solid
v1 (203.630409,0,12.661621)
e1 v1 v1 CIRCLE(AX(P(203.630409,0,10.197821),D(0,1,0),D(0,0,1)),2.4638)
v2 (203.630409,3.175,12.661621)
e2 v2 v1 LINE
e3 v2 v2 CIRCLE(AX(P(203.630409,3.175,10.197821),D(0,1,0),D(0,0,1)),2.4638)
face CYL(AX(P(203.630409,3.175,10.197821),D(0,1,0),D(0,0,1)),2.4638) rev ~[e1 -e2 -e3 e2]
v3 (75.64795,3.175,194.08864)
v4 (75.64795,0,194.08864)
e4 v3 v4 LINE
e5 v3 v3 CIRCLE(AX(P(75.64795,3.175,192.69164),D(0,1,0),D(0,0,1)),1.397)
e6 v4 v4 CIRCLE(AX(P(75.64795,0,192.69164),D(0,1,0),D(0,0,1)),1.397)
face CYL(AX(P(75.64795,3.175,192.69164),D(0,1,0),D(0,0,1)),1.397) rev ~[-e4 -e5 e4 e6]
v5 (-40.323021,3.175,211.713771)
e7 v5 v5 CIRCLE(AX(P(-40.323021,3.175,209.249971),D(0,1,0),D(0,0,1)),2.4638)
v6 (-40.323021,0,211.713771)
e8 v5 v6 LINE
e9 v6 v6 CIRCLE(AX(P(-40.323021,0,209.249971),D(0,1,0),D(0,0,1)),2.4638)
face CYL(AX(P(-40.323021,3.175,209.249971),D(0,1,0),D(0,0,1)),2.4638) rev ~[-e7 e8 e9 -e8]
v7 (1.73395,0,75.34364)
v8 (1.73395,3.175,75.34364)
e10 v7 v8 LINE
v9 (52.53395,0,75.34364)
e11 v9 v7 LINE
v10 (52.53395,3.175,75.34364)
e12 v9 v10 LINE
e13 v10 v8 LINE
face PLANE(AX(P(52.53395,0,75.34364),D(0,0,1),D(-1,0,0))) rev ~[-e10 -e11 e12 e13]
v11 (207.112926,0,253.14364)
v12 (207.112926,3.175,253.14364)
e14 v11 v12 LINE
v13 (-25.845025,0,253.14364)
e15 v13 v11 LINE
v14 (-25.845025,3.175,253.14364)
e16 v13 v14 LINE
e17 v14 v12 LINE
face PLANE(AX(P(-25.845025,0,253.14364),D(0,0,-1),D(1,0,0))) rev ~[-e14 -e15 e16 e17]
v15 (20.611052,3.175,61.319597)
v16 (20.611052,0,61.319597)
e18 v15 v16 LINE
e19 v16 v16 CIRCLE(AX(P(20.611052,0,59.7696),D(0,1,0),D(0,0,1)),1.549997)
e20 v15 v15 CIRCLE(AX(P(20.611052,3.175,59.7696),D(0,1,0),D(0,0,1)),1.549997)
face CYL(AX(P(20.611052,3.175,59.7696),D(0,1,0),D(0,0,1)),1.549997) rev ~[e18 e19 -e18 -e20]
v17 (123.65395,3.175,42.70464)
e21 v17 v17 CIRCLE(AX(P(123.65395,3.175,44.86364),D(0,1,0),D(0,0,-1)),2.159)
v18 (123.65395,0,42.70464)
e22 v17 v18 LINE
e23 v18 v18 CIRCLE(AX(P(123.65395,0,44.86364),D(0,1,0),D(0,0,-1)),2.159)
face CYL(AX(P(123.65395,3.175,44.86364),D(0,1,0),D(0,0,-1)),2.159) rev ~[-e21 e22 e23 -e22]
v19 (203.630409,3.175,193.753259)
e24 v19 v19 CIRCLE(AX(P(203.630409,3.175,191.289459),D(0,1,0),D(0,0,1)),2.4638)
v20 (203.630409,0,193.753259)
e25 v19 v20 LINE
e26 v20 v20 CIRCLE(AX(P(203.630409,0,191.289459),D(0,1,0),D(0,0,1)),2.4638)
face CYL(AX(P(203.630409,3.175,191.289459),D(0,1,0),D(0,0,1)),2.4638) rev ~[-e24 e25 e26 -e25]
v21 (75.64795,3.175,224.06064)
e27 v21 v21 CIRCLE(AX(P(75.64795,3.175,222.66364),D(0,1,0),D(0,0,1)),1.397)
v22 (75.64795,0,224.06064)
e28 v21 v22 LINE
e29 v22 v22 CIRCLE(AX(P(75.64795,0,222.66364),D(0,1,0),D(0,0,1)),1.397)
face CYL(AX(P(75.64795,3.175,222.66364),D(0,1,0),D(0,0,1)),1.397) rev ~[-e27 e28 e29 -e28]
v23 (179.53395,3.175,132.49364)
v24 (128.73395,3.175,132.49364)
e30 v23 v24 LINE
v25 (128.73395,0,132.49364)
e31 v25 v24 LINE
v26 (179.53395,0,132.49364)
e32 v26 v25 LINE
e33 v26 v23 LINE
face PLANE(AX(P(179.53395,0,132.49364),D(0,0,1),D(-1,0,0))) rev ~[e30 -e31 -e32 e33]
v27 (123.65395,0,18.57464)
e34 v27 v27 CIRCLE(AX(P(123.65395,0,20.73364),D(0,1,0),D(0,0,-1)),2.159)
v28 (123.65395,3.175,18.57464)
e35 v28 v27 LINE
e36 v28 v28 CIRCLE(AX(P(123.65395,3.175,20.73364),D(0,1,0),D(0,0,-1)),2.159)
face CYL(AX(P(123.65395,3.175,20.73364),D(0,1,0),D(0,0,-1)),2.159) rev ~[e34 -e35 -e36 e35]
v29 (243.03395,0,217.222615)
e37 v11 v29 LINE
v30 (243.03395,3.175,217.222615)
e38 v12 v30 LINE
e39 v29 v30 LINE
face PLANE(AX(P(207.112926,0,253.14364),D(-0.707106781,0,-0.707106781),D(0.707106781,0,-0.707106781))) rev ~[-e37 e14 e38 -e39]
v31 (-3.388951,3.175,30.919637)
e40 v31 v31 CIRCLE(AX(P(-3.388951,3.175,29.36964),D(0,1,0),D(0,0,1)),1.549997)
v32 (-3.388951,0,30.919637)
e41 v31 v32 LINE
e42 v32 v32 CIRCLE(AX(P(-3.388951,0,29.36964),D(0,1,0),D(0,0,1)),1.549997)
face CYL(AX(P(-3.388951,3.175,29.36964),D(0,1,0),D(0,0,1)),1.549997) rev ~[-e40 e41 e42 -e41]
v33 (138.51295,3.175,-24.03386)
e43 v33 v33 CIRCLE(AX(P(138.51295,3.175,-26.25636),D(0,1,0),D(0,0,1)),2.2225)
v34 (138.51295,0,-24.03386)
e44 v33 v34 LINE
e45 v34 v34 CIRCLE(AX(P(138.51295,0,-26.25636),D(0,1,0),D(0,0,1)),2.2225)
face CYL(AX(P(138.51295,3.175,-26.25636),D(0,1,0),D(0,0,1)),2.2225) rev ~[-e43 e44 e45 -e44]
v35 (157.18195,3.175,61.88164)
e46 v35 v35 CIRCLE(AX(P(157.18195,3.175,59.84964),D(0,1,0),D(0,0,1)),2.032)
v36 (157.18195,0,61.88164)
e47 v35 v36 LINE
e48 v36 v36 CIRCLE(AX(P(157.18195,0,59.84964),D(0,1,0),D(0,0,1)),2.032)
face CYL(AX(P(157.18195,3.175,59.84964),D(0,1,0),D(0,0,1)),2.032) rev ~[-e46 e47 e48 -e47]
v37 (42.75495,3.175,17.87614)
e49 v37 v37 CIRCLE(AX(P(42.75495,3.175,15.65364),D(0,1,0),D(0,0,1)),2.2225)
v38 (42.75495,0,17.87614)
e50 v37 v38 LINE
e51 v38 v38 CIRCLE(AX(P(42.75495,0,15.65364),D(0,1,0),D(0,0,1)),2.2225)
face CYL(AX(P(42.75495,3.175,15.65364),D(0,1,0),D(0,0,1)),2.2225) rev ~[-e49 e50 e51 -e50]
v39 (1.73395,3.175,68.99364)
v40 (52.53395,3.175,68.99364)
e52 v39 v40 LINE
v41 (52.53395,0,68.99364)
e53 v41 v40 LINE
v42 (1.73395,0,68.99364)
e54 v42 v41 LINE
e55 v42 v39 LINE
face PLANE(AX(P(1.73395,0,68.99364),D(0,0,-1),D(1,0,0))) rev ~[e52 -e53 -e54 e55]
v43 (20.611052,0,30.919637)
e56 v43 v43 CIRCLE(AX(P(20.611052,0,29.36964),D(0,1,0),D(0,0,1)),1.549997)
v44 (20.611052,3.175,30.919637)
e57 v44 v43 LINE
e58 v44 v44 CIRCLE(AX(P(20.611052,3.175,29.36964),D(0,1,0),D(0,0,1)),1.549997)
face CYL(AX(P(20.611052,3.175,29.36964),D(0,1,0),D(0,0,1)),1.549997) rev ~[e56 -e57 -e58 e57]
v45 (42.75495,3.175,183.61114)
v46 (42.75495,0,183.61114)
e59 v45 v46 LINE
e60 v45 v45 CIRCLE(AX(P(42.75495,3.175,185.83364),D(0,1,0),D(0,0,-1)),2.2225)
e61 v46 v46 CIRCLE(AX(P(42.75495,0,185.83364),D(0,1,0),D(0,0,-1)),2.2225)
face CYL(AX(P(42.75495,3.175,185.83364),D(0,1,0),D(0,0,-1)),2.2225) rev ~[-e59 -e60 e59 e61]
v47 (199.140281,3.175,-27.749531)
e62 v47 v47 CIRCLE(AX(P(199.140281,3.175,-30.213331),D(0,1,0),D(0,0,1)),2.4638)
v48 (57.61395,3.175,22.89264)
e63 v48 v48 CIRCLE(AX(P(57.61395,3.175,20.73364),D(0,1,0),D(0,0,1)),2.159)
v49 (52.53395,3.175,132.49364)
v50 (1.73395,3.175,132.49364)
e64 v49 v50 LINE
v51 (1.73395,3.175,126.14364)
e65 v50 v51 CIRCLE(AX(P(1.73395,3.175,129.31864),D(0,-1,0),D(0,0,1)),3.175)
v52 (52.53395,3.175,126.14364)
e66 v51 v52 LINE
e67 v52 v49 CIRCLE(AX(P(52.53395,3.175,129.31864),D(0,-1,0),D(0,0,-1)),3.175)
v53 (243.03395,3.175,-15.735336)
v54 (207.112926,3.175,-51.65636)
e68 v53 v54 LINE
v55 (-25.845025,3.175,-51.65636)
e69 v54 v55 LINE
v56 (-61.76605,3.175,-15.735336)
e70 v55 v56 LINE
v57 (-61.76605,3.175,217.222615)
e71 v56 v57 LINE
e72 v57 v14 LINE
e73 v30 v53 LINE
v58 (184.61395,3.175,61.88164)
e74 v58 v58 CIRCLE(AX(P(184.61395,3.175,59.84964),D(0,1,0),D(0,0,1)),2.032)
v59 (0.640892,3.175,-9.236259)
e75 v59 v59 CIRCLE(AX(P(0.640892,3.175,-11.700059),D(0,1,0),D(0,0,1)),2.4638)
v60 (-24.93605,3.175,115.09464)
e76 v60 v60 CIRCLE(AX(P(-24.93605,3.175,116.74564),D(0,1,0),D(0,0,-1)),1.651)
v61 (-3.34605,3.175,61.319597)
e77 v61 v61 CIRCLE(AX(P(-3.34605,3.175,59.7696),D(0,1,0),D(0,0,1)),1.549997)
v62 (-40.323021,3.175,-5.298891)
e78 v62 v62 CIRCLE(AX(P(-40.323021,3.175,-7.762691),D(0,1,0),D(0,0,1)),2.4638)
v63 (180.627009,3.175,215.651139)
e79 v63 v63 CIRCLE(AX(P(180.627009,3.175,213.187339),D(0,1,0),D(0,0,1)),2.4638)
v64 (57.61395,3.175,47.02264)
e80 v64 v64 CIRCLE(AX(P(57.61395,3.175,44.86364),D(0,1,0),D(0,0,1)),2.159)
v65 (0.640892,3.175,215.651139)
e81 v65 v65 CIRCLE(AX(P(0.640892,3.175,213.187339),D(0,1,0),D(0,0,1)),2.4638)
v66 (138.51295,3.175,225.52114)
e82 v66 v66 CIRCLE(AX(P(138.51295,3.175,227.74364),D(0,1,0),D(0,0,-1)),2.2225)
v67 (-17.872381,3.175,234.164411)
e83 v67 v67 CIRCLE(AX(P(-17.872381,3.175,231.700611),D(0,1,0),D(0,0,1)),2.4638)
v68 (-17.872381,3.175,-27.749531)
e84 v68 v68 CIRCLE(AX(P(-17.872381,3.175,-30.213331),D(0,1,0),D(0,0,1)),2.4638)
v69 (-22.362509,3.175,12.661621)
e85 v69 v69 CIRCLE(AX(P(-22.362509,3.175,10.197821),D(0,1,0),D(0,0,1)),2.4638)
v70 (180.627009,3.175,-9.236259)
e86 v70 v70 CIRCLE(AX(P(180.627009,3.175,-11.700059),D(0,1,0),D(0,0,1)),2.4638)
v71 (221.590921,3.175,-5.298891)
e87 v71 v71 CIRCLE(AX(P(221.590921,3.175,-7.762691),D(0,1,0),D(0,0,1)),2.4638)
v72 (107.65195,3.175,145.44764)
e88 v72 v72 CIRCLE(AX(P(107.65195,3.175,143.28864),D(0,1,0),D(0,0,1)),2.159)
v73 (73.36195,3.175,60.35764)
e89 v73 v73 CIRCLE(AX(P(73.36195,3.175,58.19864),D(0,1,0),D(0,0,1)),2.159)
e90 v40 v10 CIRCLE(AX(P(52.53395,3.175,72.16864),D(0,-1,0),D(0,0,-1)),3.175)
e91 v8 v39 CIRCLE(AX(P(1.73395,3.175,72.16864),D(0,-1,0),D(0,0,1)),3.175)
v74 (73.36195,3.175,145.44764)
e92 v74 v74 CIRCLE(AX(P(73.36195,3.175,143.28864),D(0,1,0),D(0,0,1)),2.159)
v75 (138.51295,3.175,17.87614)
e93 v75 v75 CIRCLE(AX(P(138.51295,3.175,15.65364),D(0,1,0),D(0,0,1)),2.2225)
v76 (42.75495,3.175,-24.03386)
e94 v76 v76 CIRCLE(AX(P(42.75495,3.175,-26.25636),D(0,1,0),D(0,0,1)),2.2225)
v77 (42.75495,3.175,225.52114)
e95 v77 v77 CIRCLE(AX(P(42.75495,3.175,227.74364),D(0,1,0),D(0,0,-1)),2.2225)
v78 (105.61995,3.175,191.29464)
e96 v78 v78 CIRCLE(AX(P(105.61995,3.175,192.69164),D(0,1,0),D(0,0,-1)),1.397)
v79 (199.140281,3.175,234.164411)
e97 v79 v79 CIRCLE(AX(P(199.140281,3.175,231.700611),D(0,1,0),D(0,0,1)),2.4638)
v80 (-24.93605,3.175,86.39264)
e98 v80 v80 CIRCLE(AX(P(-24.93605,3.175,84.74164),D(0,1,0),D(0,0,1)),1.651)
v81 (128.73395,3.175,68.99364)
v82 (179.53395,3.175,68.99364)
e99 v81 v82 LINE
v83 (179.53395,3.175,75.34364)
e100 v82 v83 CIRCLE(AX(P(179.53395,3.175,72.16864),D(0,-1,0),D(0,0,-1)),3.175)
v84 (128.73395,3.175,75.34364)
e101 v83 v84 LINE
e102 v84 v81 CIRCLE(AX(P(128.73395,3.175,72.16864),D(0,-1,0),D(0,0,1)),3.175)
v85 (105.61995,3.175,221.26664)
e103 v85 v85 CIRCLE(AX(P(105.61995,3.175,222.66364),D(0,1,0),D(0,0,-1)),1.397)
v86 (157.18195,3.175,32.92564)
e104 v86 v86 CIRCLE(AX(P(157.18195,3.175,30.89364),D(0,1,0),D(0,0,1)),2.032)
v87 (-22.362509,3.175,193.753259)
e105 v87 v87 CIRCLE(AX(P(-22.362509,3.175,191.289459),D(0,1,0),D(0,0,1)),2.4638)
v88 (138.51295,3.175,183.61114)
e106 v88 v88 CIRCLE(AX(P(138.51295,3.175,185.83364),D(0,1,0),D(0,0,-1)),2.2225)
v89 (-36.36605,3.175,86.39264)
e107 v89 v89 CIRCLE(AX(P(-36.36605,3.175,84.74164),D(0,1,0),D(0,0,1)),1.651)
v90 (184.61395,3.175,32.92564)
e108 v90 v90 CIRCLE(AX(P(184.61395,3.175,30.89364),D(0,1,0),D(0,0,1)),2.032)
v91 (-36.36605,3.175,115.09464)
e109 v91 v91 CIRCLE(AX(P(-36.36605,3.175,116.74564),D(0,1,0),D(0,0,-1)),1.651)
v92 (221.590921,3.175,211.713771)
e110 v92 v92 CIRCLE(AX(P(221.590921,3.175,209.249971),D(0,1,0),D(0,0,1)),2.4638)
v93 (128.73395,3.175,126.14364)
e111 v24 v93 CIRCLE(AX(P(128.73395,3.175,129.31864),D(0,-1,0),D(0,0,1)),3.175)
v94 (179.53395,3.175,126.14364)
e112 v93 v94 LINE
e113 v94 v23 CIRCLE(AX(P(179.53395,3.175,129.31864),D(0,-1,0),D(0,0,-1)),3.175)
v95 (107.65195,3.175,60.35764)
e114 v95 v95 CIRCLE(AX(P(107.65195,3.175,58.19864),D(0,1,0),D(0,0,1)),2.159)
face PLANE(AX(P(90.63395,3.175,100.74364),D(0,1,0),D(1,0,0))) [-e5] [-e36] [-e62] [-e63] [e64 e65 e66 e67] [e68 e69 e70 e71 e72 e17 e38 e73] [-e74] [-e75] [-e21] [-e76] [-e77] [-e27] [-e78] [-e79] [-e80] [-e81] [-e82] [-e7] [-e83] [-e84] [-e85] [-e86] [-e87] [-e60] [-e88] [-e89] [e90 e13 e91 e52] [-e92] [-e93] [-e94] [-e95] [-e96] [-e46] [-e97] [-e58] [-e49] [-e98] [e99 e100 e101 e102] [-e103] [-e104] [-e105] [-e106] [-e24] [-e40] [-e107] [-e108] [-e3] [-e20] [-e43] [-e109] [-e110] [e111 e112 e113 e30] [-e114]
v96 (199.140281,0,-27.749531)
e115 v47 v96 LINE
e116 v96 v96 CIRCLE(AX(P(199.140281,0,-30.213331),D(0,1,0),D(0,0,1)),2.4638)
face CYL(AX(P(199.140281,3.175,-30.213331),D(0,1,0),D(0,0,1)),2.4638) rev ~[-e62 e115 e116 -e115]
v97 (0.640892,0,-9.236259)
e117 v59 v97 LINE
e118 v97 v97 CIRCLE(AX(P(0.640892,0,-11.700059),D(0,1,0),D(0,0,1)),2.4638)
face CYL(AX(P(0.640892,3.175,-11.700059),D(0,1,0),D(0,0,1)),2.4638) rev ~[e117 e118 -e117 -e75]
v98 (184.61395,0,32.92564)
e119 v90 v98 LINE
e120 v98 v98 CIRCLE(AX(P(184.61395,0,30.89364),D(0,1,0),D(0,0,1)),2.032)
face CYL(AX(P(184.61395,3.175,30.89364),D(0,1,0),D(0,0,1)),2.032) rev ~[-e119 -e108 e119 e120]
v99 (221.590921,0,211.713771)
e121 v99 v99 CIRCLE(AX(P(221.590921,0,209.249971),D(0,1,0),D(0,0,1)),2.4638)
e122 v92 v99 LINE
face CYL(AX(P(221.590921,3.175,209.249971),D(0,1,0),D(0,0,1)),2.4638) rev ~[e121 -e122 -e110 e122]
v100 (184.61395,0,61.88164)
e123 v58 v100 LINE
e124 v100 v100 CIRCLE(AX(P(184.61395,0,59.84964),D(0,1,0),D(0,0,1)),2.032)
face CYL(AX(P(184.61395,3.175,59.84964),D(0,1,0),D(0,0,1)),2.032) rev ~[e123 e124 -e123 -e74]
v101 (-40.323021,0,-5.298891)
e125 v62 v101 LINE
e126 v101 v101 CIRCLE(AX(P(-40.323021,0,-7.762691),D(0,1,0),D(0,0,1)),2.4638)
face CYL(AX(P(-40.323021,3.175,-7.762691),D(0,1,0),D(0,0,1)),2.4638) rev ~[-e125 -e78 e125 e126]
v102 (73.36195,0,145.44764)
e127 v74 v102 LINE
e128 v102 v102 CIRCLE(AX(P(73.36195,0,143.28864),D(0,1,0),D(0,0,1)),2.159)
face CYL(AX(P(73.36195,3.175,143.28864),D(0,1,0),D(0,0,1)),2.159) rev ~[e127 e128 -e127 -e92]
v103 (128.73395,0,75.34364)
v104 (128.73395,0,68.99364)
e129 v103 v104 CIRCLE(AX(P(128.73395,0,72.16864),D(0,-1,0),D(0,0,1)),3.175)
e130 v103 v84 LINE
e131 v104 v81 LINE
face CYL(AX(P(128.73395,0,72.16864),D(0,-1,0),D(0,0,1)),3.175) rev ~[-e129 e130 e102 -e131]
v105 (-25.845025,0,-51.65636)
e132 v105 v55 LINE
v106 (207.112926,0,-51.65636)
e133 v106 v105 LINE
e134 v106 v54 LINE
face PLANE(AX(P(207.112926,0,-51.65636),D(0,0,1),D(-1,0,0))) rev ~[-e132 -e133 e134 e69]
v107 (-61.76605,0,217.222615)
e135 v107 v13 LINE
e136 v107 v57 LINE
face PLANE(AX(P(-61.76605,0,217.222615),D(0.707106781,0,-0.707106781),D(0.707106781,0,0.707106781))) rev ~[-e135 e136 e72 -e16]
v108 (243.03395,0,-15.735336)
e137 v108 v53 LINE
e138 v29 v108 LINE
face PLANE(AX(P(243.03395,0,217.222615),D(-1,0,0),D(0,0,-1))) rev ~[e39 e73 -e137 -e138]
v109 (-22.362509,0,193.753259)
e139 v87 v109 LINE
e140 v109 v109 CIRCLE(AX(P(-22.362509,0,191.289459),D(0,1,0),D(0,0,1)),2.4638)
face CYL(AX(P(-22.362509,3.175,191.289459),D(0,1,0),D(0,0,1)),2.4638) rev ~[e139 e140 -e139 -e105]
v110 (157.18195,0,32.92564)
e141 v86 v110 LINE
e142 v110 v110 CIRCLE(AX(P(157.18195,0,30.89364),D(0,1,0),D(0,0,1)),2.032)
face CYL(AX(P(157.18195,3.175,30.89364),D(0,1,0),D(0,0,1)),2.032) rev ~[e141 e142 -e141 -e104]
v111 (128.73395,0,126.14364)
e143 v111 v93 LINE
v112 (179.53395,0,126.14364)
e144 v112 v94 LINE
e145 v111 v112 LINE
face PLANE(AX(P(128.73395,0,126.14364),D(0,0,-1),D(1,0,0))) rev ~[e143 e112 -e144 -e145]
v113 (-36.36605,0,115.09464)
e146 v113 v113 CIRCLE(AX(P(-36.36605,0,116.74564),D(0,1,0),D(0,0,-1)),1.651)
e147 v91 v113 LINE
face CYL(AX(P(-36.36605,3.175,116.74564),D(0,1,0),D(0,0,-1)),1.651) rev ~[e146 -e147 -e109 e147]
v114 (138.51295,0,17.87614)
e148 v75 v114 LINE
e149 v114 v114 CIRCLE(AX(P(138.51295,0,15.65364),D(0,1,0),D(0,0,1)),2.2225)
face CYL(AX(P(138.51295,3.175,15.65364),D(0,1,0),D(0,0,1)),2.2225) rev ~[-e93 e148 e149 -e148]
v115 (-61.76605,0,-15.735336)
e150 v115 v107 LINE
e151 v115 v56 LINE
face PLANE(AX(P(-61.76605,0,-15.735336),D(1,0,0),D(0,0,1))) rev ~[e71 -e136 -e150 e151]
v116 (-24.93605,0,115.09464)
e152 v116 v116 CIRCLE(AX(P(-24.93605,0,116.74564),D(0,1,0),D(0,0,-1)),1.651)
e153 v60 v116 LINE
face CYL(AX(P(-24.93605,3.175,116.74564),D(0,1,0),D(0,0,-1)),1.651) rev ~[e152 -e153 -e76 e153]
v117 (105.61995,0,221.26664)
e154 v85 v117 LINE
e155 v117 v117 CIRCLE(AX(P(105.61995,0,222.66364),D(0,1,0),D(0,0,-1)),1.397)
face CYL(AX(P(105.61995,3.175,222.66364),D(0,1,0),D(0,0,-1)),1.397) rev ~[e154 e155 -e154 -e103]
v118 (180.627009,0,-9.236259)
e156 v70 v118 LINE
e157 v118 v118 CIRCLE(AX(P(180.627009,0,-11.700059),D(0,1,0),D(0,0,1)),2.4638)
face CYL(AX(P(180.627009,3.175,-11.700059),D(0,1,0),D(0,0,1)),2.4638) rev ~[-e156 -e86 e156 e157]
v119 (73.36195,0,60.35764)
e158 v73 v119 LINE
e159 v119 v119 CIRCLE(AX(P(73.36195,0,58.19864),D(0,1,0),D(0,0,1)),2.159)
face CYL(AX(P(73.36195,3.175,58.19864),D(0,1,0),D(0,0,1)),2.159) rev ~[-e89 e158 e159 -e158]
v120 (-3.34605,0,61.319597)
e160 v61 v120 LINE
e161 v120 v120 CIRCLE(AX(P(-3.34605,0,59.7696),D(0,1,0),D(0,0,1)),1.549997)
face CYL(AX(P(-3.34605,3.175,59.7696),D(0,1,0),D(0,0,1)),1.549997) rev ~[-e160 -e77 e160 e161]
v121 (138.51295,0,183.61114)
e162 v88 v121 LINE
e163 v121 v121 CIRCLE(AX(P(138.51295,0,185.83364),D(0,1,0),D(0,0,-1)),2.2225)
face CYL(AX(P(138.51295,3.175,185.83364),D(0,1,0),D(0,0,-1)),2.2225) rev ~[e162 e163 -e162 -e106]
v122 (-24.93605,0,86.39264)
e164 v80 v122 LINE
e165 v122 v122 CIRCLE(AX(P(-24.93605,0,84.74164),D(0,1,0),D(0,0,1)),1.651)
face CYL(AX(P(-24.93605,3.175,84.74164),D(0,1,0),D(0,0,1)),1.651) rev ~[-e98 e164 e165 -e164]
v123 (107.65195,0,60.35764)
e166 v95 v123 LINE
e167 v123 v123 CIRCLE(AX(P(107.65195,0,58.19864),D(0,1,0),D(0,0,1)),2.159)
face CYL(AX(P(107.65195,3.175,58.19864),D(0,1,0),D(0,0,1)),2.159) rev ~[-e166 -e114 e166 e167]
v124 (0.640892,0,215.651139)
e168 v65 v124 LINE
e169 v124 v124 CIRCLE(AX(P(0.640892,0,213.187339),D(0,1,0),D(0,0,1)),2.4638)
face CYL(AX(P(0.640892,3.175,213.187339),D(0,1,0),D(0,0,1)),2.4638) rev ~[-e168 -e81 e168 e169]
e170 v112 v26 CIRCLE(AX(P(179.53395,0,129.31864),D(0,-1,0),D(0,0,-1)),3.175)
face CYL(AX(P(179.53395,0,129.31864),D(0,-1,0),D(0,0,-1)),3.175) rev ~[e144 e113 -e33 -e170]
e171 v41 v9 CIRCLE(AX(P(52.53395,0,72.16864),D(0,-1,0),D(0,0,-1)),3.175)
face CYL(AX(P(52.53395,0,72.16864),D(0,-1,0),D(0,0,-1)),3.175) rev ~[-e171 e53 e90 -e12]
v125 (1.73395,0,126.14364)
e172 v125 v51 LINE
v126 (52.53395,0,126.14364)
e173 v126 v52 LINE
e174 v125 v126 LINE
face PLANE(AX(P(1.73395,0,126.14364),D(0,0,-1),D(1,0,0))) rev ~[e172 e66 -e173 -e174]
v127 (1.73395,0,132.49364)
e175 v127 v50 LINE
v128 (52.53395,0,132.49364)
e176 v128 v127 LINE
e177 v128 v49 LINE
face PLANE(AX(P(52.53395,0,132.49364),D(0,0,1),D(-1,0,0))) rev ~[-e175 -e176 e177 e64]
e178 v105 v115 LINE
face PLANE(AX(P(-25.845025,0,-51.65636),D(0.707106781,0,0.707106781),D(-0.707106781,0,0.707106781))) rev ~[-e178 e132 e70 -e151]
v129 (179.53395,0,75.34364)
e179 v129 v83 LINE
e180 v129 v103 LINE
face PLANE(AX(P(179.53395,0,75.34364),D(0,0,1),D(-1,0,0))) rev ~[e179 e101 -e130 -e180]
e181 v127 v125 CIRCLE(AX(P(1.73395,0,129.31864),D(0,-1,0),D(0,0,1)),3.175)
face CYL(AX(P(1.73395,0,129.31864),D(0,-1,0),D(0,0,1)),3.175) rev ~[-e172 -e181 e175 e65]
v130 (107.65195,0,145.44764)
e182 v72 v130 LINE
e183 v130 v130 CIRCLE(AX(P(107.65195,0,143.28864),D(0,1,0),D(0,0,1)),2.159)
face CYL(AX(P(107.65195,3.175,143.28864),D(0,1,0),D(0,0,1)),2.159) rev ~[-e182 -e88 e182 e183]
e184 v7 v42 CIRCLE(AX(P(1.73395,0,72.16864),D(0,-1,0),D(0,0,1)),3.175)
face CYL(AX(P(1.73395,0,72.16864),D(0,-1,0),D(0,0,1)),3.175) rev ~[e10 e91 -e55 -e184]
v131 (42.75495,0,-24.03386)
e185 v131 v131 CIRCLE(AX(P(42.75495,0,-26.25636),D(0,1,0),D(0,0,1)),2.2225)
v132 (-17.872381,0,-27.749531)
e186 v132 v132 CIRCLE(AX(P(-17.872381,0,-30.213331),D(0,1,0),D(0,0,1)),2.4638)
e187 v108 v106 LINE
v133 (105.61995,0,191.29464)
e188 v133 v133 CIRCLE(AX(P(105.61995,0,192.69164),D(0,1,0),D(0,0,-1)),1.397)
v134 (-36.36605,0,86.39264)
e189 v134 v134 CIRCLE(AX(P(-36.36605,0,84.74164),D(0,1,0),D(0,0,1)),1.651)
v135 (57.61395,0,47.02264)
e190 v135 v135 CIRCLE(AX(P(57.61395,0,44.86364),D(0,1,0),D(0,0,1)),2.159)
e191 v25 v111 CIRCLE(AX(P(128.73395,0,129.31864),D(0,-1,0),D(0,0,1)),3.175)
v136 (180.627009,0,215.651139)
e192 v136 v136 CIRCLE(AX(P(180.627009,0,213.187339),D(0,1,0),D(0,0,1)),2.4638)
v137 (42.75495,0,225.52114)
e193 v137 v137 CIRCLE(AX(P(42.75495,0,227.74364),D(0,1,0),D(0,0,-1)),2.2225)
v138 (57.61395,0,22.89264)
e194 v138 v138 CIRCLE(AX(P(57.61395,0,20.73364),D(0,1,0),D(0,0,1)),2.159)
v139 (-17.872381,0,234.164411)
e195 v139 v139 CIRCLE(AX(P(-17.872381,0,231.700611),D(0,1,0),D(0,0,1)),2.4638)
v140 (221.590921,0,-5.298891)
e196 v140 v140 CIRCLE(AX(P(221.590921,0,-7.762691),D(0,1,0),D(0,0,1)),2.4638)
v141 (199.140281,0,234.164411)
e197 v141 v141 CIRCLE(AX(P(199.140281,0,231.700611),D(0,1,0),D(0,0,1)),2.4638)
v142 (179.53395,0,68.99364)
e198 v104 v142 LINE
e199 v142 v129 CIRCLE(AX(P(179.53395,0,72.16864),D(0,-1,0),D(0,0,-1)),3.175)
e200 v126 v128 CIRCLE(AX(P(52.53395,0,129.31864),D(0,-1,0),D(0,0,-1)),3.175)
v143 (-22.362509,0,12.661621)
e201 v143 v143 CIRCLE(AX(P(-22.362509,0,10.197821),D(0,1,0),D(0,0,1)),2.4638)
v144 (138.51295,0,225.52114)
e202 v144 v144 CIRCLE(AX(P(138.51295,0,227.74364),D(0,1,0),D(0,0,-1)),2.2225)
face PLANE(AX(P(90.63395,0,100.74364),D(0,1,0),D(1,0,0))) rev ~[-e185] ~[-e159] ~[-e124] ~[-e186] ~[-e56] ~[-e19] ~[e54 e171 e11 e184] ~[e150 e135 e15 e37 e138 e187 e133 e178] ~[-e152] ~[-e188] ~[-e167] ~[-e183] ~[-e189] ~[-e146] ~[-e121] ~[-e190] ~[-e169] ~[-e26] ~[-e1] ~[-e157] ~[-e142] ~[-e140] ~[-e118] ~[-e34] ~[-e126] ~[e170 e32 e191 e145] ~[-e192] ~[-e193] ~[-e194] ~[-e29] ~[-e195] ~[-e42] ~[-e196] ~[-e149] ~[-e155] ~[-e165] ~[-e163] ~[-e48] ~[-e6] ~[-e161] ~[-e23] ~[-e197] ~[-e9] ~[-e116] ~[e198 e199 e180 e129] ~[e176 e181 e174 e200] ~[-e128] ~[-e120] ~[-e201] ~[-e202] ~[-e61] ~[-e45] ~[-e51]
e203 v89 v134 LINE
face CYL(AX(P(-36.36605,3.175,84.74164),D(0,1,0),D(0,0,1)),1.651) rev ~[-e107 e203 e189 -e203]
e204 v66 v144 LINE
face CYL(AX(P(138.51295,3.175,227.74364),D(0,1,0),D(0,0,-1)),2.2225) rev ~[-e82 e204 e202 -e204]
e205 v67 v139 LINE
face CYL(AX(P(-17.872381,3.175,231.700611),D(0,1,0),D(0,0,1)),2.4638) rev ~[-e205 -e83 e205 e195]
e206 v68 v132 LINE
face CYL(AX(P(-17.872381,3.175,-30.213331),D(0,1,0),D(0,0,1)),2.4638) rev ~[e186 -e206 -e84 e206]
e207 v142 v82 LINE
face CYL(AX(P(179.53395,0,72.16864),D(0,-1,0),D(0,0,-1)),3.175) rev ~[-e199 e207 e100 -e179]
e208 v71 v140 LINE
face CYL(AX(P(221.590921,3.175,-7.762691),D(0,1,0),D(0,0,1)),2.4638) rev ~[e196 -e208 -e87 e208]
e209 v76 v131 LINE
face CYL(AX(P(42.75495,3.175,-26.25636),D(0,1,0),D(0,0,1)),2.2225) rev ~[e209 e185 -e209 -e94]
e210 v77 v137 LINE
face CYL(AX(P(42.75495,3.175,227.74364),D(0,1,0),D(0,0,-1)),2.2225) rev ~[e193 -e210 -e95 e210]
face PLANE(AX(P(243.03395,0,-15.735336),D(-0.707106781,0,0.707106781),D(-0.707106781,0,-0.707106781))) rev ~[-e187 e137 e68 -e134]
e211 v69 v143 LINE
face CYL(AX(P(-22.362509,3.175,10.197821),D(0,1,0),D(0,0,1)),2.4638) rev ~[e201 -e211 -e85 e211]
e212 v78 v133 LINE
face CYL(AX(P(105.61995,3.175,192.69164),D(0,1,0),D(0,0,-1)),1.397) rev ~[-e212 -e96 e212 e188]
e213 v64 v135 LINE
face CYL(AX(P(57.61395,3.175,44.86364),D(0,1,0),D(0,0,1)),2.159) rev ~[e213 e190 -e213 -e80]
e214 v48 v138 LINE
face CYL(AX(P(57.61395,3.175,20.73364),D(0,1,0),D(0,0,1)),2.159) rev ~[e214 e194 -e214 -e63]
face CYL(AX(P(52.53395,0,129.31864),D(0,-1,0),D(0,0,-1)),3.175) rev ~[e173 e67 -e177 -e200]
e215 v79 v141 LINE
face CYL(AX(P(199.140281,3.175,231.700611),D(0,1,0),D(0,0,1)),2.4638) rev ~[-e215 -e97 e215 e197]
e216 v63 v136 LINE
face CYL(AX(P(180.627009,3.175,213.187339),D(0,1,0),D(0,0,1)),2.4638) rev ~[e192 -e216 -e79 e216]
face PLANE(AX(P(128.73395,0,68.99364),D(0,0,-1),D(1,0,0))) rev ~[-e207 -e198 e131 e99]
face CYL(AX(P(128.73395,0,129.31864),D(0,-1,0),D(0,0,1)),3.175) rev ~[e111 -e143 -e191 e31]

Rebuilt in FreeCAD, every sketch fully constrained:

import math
import FreeCAD as App
import Part
import Sketcher

V = App.Vector
Q = App.Units.Quantity

doc = App.newDocument("Part")
body = doc.addObject("PartDesign::Body", "Body")

sketch1 = body.newObject("Sketcher::SketchObject", "Sketch")
sketch1.AttachmentSupport = (doc.getObject("XZ_Plane"), [""])
sketch1.MapMode = "FlatFace"
sketch1.addGeometry([
    Part.LineSegment(V(-25.8, -51.7, 0), V(-61.8, -15.7, 0)),
    Part.LineSegment(V(-61.8, -15.7, 0), V(-61.8, 217.2, 0)),
    Part.LineSegment(V(-61.8, 217.2, 0), V(-25.8, 253.1, 0)),
    Part.LineSegment(V(-25.8, 253.1, 0), V(207.1, 253.1, 0)),
    Part.LineSegment(V(207.1, 253.1, 0), V(243, 217.2, 0)),
    Part.LineSegment(V(243, 217.2, 0), V(243, -15.7, 0)),
    Part.LineSegment(V(243, -15.7, 0), V(207.1, -51.7, 0)),
    Part.LineSegment(V(207.1, -51.7, 0), V(-25.8, -51.7, 0)),
    Part.LineSegment(V(1.7, 126.1, 0), V(52.5, 126.1, 0)),
    Part.ArcOfCircle(Part.Circle(V(52.5, 129.3, 0), V(0, 0, 1), 3.2), math.radians(-90), math.radians(90)),
    Part.LineSegment(V(52.5, 132.5, 0), V(1.7, 132.5, 0)),
    Part.ArcOfCircle(Part.Circle(V(1.7, 129.3, 0), V(0, 0, 1), 3.2), math.radians(90), math.radians(270)),
    Part.ArcOfCircle(Part.Circle(V(179.5, 129.3, 0), V(0, 0, 1), 3.2), math.radians(-90), math.radians(90)),
    Part.LineSegment(V(179.5, 132.5, 0), V(128.7, 132.5, 0)),
    Part.ArcOfCircle(Part.Circle(V(128.7, 129.3, 0), V(0, 0, 1), 3.2), math.radians(90), math.radians(270)),
    Part.LineSegment(V(128.7, 126.1, 0), V(179.5, 126.1, 0)),
    Part.ArcOfCircle(Part.Circle(V(1.7, 72.2, 0), V(0, 0, 1), 3.2), math.radians(90), math.radians(270)),
    Part.LineSegment(V(1.7, 69, 0), V(52.5, 69, 0)),
    Part.ArcOfCircle(Part.Circle(V(52.5, 72.2, 0), V(0, 0, 1), 3.2), math.radians(-90), math.radians(90)),
    Part.LineSegment(V(52.5, 75.3, 0), V(1.7, 75.3, 0)),
    Part.LineSegment(V(179.5, 75.3, 0), V(128.7, 75.3, 0)),
    Part.ArcOfCircle(Part.Circle(V(128.7, 72.2, 0), V(0, 0, 1), 3.2), math.radians(90), math.radians(270)),
    Part.LineSegment(V(128.7, 69, 0), V(179.5, 69, 0)),
    Part.ArcOfCircle(Part.Circle(V(179.5, 72.2, 0), V(0, 0, 1), 3.2), math.radians(-90), math.radians(90)),
], False)
sketch1.addConstraint([
    Sketcher.Constraint("Coincident", 0, 2, 1, 1),
    Sketcher.Constraint("Coincident", 1, 2, 2, 1),
    Sketcher.Constraint("Coincident", 2, 2, 3, 1),
    Sketcher.Constraint("Coincident", 3, 2, 4, 1),
    Sketcher.Constraint("Coincident", 4, 2, 5, 1),
    Sketcher.Constraint("Coincident", 5, 2, 6, 1),
    Sketcher.Constraint("Coincident", 6, 2, 7, 1),
    Sketcher.Constraint("Coincident", 7, 2, 0, 1),
    Sketcher.Constraint("Tangent", 8, 2, 9, 1),
    Sketcher.Constraint("Tangent", 9, 2, 10, 1),
    Sketcher.Constraint("Tangent", 10, 2, 11, 1),
    Sketcher.Constraint("Tangent", 11, 2, 8, 1),
    Sketcher.Constraint("Tangent", 12, 2, 13, 1),
    Sketcher.Constraint("Tangent", 13, 2, 14, 1),
    Sketcher.Constraint("Tangent", 14, 2, 15, 1),
    Sketcher.Constraint("Tangent", 15, 2, 12, 1),
    Sketcher.Constraint("Tangent", 16, 2, 17, 1),
    Sketcher.Constraint("Tangent", 17, 2, 18, 1),
    Sketcher.Constraint("Tangent", 18, 2, 19, 1),
    Sketcher.Constraint("Tangent", 19, 2, 16, 1),
    Sketcher.Constraint("Tangent", 20, 2, 21, 1),
    Sketcher.Constraint("Tangent", 21, 2, 22, 1),
    Sketcher.Constraint("Tangent", 22, 2, 23, 1),
    Sketcher.Constraint("Tangent", 23, 2, 20, 1),
    Sketcher.Constraint("Vertical", 1),
    Sketcher.Constraint("Horizontal", 3),
    Sketcher.Constraint("Vertical", 5),
    Sketcher.Constraint("Horizontal", 7),
    Sketcher.Constraint("Horizontal", 8),
    Sketcher.Constraint("Horizontal", 10),
    Sketcher.Constraint("Horizontal", 13),
    Sketcher.Constraint("Horizontal", 15),
    Sketcher.Constraint("Horizontal", 17),
    Sketcher.Constraint("Horizontal", 19),
    Sketcher.Constraint("Horizontal", 20),
    Sketcher.Constraint("Horizontal", 22),
    Sketcher.Constraint("Equal", 11, 12),
    Sketcher.Constraint("Equal", 14, 16),
    Sketcher.Constraint("Equal", 18, 21),
    Sketcher.Constraint("Perpendicular", 0, 2),
    Sketcher.Constraint("Perpendicular", 2, 4),
    Sketcher.Constraint("Perpendicular", 4, 6),
    Sketcher.Constraint("Horizontal", 11, 3, 12, 3),
    Sketcher.Constraint("Horizontal", 18, 3, 21, 3),
    Sketcher.Constraint("Horizontal", 1, 2, 4, 2),
    Sketcher.Constraint("Horizontal", 0, 2, 5, 2),
    Sketcher.Constraint("Vertical", 11, 3, 16, 3),
    Sketcher.Constraint("Vertical", 9, 3, 18, 3),
    Sketcher.Constraint("Vertical", 14, 3, 21, 3),
    Sketcher.Constraint("Vertical", 12, 3, 23, 3),
    Sketcher.Constraint("Vertical", 3, 2, 6, 2),
    Sketcher.Constraint("Vertical", 2, 2, 7, 2),
    Sketcher.Constraint("Equal", 10, 13),
    Sketcher.Constraint("Equal", 7, 1),
    Sketcher.Constraint("DistanceX", 8, 1, 8, 2, Q("2 in")),
    Sketcher.Constraint("Distance", 0, Q("2 in")),
    Sketcher.Constraint("Radius", 9, Q("0.125 in")),
    Sketcher.Constraint("DistanceX", 9, 3, 12, 3, Q("5 in")),
    Sketcher.Constraint("DistanceY", 18, 2, 8, 2, Q("2 in")),
    Sketcher.Constraint("DistanceX", 0, 2, 16, 3, Q("2.5 in")),
    Sketcher.Constraint("DistanceX", 12, 3, 4, 2, Q("2.5 in")),
    Sketcher.Constraint("DistanceY", 11, 3, 2, 2, Q("4.875 in")),
    Sketcher.Constraint("DistanceX", -1, 1, 9, 3, 52.53395),
    Sketcher.Constraint("DistanceY", -1, 1, 9, 3, 129.31864),
])
pad1 = body.newObject("PartDesign::Pad", "Pad")
pad1.Profile = sketch1
pad1.Length = Q("0.125 in")
pad1.Reversed = True

sketch2 = body.newObject("Sketcher::SketchObject", "Sketch001")
sketch2.AttachmentSupport = (doc.getObject("XZ_Plane"), [""])
sketch2.MapMode = "FlatFace"
sketch2.AttachmentOffset = App.Placement(V(0, 0, -0.125 * 25.4), App.Rotation())
sketch2.addGeometry([
    Part.Circle(V(-17.9, -30.2, 0), V(0, 0, 1), 2.5),
    Part.Circle(V(0.6, -11.7, 0), V(0, 0, 1), 2.5),
    Part.Circle(V(-22.4, 10.2, 0), V(0, 0, 1), 2.5),
    Part.Circle(V(-40.3, -7.8, 0), V(0, 0, 1), 2.5),
    Part.Circle(V(203.6, 10.2, 0), V(0, 0, 1), 2.5),
    Part.Circle(V(221.6, -7.8, 0), V(0, 0, 1), 2.5),
    Part.Circle(V(180.6, -11.7, 0), V(0, 0, 1), 2.5),
    Part.Circle(V(199.1, -30.2, 0), V(0, 0, 1), 2.5),
    Part.Circle(V(-22.4, 191.3, 0), V(0, 0, 1), 2.5),
    Part.Circle(V(-40.3, 209.2, 0), V(0, 0, 1), 2.5),
    Part.Circle(V(-17.9, 231.7, 0), V(0, 0, 1), 2.5),
    Part.Circle(V(0.6, 213.2, 0), V(0, 0, 1), 2.5),
    Part.Circle(V(221.6, 209.2, 0), V(0, 0, 1), 2.5),
    Part.Circle(V(199.1, 231.7, 0), V(0, 0, 1), 2.5),
    Part.Circle(V(180.6, 213.2, 0), V(0, 0, 1), 2.5),
    Part.Circle(V(203.6, 191.3, 0), V(0, 0, 1), 2.5),
], False)
sketch2.addConstraint([
    Sketcher.Constraint("Equal", 0, 1),
    Sketcher.Constraint("Equal", 1, 2),
    Sketcher.Constraint("Equal", 2, 3),
    Sketcher.Constraint("Equal", 3, 4),
    Sketcher.Constraint("Equal", 4, 5),
    Sketcher.Constraint("Equal", 5, 6),
    Sketcher.Constraint("Equal", 6, 7),
    Sketcher.Constraint("Equal", 7, 8),
    Sketcher.Constraint("Equal", 8, 9),
    Sketcher.Constraint("Equal", 9, 10),
    Sketcher.Constraint("Equal", 10, 11),
    Sketcher.Constraint("Equal", 11, 12),
    Sketcher.Constraint("Equal", 12, 13),
    Sketcher.Constraint("Equal", 13, 14),
    Sketcher.Constraint("Equal", 14, 15),
    Sketcher.Constraint("Horizontal", 2, 3, 4, 3),
    Sketcher.Constraint("Horizontal", 3, 3, 5, 3),
    Sketcher.Constraint("Horizontal", 1, 3, 6, 3),
    Sketcher.Constraint("Horizontal", 0, 3, 7, 3),
    Sketcher.Constraint("Horizontal", 9, 3, 12, 3),
    Sketcher.Constraint("Horizontal", 10, 3, 13, 3),
    Sketcher.Constraint("Horizontal", 11, 3, 14, 3),
    Sketcher.Constraint("Horizontal", 8, 3, 15, 3),
    Sketcher.Constraint("Vertical", 2, 3, 8, 3),
    Sketcher.Constraint("Vertical", 3, 3, 9, 3),
    Sketcher.Constraint("Vertical", 0, 3, 10, 3),
    Sketcher.Constraint("Vertical", 1, 3, 11, 3),
    Sketcher.Constraint("Vertical", 5, 3, 12, 3),
    Sketcher.Constraint("Vertical", 7, 3, 13, 3),
    Sketcher.Constraint("Vertical", 6, 3, 14, 3),
    Sketcher.Constraint("Vertical", 4, 3, 15, 3),
    Sketcher.Constraint("Diameter", 0, Q("0.194 in")),
    Sketcher.Constraint("DistanceX", 2, 3, 1, 3, 23.0034),
    Sketcher.Constraint("DistanceX", 6, 3, 4, 3, 23.0034),
    Sketcher.Constraint("DistanceX", 0, 3, -1, 1, 17.872381),
    Sketcher.Constraint("DistanceY", 0, 3, -1, 1, 30.213331),
    Sketcher.Constraint("DistanceX", -1, 1, 1, 3, 0.640892),
    Sketcher.Constraint("DistanceY", 1, 3, -1, 1, 11.700059),
    Sketcher.Constraint("DistanceY", -1, 1, 2, 3, 10.197821),
    Sketcher.Constraint("DistanceX", 3, 3, -1, 1, 40.323021),
    Sketcher.Constraint("DistanceY", 3, 3, -1, 1, 7.762691),
    Sketcher.Constraint("DistanceX", -1, 1, 4, 3, 203.630409),
    Sketcher.Constraint("DistanceX", -1, 1, 5, 3, 221.590921),
    Sketcher.Constraint("DistanceX", -1, 1, 7, 3, 199.140281),
    Sketcher.Constraint("DistanceY", -1, 1, 8, 3, 191.289459),
    Sketcher.Constraint("DistanceY", -1, 1, 9, 3, 209.249971),
    Sketcher.Constraint("DistanceY", -1, 1, 10, 3, 231.700611),
    Sketcher.Constraint("DistanceY", -1, 1, 11, 3, 213.187339),
])
pocket1 = body.newObject("PartDesign::Pocket", "Pocket")
pocket1.Profile = sketch2
pocket1.Length = Q("0.25 in")
pocket1.Reversed = True

sketch3 = body.newObject("Sketcher::SketchObject", "Sketch002")
sketch3.AttachmentSupport = (doc.getObject("XZ_Plane"), [""])
sketch3.MapMode = "FlatFace"
sketch3.AttachmentOffset = App.Placement(V(0, 0, -0.125 * 25.4), App.Rotation())
sketch3.addGeometry([
    Part.Circle(V(73.4, 58.2, 0), V(0, 0, 1), 2.2),
    Part.Circle(V(107.7, 58.2, 0), V(0, 0, 1), 2.2),
    Part.Circle(V(73.4, 143.3, 0), V(0, 0, 1), 2.2),
    Part.Circle(V(107.7, 143.3, 0), V(0, 0, 1), 2.2),
], False)
sketch3.addConstraint([
    Sketcher.Constraint("Equal", 0, 1),
    Sketcher.Constraint("Equal", 1, 2),
    Sketcher.Constraint("Equal", 2, 3),
    Sketcher.Constraint("Horizontal", 0, 3, 1, 3),
    Sketcher.Constraint("Horizontal", 2, 3, 3, 3),
    Sketcher.Constraint("Vertical", 0, 3, 2, 3),
    Sketcher.Constraint("Vertical", 1, 3, 3, 3),
    Sketcher.Constraint("Diameter", 0, Q("0.17 in")),
    Sketcher.Constraint("DistanceX", 0, 3, 1, 3, Q("1.35 in")),
    Sketcher.Constraint("DistanceY", 0, 3, 2, 3, Q("3.35 in")),
    Sketcher.Constraint("DistanceX", -1, 1, 0, 3, 73.36195),
    Sketcher.Constraint("DistanceY", -1, 1, 0, 3, 58.19864),
])
pocket2 = body.newObject("PartDesign::Pocket", "Pocket001")
pocket2.Profile = sketch3
pocket2.Length = Q("0.25 in")
pocket2.Reversed = True

sketch4 = body.newObject("Sketcher::SketchObject", "Sketch003")
sketch4.AttachmentSupport = (doc.getObject("XZ_Plane"), [""])
sketch4.MapMode = "FlatFace"
sketch4.AttachmentOffset = App.Placement(V(0, 0, -0.125 * 25.4), App.Rotation())
sketch4.addGeometry([
    Part.Circle(V(42.8, -26.3, 0), V(0, 0, 1), 2.2),
    Part.Circle(V(138.5, -26.3, 0), V(0, 0, 1), 2.2),
    Part.Circle(V(42.8, 15.7, 0), V(0, 0, 1), 2.2),
    Part.Circle(V(138.5, 15.7, 0), V(0, 0, 1), 2.2),
    Part.Circle(V(138.5, 185.8, 0), V(0, 0, 1), 2.2),
    Part.Circle(V(42.8, 185.8, 0), V(0, 0, 1), 2.2),
    Part.Circle(V(138.5, 227.7, 0), V(0, 0, 1), 2.2),
    Part.Circle(V(42.8, 227.7, 0), V(0, 0, 1), 2.2),
], False)
sketch4.addConstraint([
    Sketcher.Constraint("Equal", 0, 1),
    Sketcher.Constraint("Equal", 1, 2),
    Sketcher.Constraint("Equal", 2, 3),
    Sketcher.Constraint("Equal", 3, 4),
    Sketcher.Constraint("Equal", 4, 5),
    Sketcher.Constraint("Equal", 5, 6),
    Sketcher.Constraint("Equal", 6, 7),
    Sketcher.Constraint("Horizontal", 0, 3, 1, 3),
    Sketcher.Constraint("Horizontal", 2, 3, 3, 3),
    Sketcher.Constraint("Horizontal", 4, 3, 5, 3),
    Sketcher.Constraint("Horizontal", 6, 3, 7, 3),
    Sketcher.Constraint("Vertical", 0, 3, 2, 3),
    Sketcher.Constraint("Vertical", 1, 3, 3, 3),
    Sketcher.Constraint("Vertical", 3, 3, 4, 3),
    Sketcher.Constraint("Vertical", 2, 3, 5, 3),
    Sketcher.Constraint("Vertical", 4, 3, 6, 3),
    Sketcher.Constraint("Vertical", 5, 3, 7, 3),
    Sketcher.Constraint("Diameter", 0, Q("0.175 in")),
    Sketcher.Constraint("DistanceY", 1, 3, 6, 3, Q("10 in")),
    Sketcher.Constraint("DistanceY", 3, 3, 4, 3, Q("6.7 in")),
    Sketcher.Constraint("DistanceX", 0, 3, 1, 3, Q("3.77 in")),
    Sketcher.Constraint("DistanceY", 0, 3, 2, 3, Q("1.65 in")),
    Sketcher.Constraint("DistanceX", -1, 1, 0, 3, 42.75495),
    Sketcher.Constraint("DistanceY", 0, 3, -1, 1, 26.25636),
])
pocket3 = body.newObject("PartDesign::Pocket", "Pocket002")
pocket3.Profile = sketch4
pocket3.Type = "ThroughAll"
pocket3.Reversed = True

sketch5 = body.newObject("Sketcher::SketchObject", "Sketch004")
sketch5.AttachmentSupport = (doc.getObject("XZ_Plane"), [""])
sketch5.MapMode = "FlatFace"
sketch5.AttachmentOffset = App.Placement(V(0, 0, -0.125 * 25.4), App.Rotation())
sketch5.addGeometry([
    Part.Circle(V(-36.4, 84.7, 0), V(0, 0, 1), 1.7),
    Part.Circle(V(-24.9, 84.7, 0), V(0, 0, 1), 1.7),
    Part.Circle(V(-24.9, 116.7, 0), V(0, 0, 1), 1.7),
    Part.Circle(V(-36.4, 116.7, 0), V(0, 0, 1), 1.7),
], False)
sketch5.addConstraint([
    Sketcher.Constraint("Equal", 0, 1),
    Sketcher.Constraint("Equal", 1, 2),
    Sketcher.Constraint("Equal", 2, 3),
    Sketcher.Constraint("Horizontal", 0, 3, 1, 3),
    Sketcher.Constraint("Horizontal", 2, 3, 3, 3),
    Sketcher.Constraint("Vertical", 1, 3, 2, 3),
    Sketcher.Constraint("Vertical", 0, 3, 3, 3),
    Sketcher.Constraint("Diameter", 0, Q("0.13 in")),
    Sketcher.Constraint("DistanceX", 0, 3, 1, 3, Q("0.45 in")),
    Sketcher.Constraint("DistanceY", 1, 3, 2, 3, Q("1.26 in")),
    Sketcher.Constraint("DistanceX", 0, 3, -1, 1, 36.36605),
    Sketcher.Constraint("DistanceY", -1, 1, 0, 3, 84.74164),
])
pocket4 = body.newObject("PartDesign::Pocket", "Pocket003")
pocket4.Profile = sketch5
pocket4.Type = "ThroughAll"
pocket4.Reversed = True

sketch6 = body.newObject("Sketcher::SketchObject", "Sketch005")
sketch6.AttachmentSupport = (doc.getObject("XZ_Plane"), [""])
sketch6.MapMode = "FlatFace"
sketch6.AttachmentOffset = App.Placement(V(0, 0, -0.125 * 25.4), App.Rotation())
sketch6.addGeometry([
    Part.Circle(V(157.2, 30.9, 0), V(0, 0, 1), 2),
    Part.Circle(V(157.2, 59.8, 0), V(0, 0, 1), 2),
    Part.Circle(V(184.6, 59.8, 0), V(0, 0, 1), 2),
    Part.Circle(V(184.6, 30.9, 0), V(0, 0, 1), 2),
    Part.Circle(V(57.6, 20.7, 0), V(0, 0, 1), 2.2),
    Part.Circle(V(57.6, 44.9, 0), V(0, 0, 1), 2.2),
    Part.Circle(V(123.7, 44.9, 0), V(0, 0, 1), 2.2),
    Part.Circle(V(123.7, 20.7, 0), V(0, 0, 1), 2.2),
    Part.Circle(V(75.6, 192.7, 0), V(0, 0, 1), 1.4),
    Part.Circle(V(75.6, 222.7, 0), V(0, 0, 1), 1.4),
    Part.Circle(V(105.6, 222.7, 0), V(0, 0, 1), 1.4),
    Part.Circle(V(105.6, 192.7, 0), V(0, 0, 1), 1.4),
    Part.Circle(V(-3.4, 29.4, 0), V(0, 0, 1), 1.5),
    Part.Circle(V(-3.3, 59.8, 0), V(0, 0, 1), 1.5),
    Part.Circle(V(20.6, 29.4, 0), V(0, 0, 1), 1.5),
    Part.Circle(V(20.6, 59.8, 0), V(0, 0, 1), 1.5),
], False)
sketch6.addConstraint([
    Sketcher.Constraint("Equal", 0, 1),
    Sketcher.Constraint("Equal", 1, 2),
    Sketcher.Constraint("Equal", 2, 3),
    Sketcher.Constraint("Equal", 4, 5),
    Sketcher.Constraint("Equal", 5, 6),
    Sketcher.Constraint("Equal", 6, 7),
    Sketcher.Constraint("Equal", 8, 9),
    Sketcher.Constraint("Equal", 9, 10),
    Sketcher.Constraint("Equal", 10, 11),
    Sketcher.Constraint("Equal", 12, 13),
    Sketcher.Constraint("Equal", 13, 14),
    Sketcher.Constraint("Equal", 14, 15),
    Sketcher.Constraint("Horizontal", 1, 3, 2, 3),
    Sketcher.Constraint("Horizontal", 0, 3, 3, 3),
    Sketcher.Constraint("Horizontal", 5, 3, 6, 3),
    Sketcher.Constraint("Horizontal", 4, 3, 7, 3),
    Sketcher.Constraint("Horizontal", 9, 3, 10, 3),
    Sketcher.Constraint("Horizontal", 8, 3, 11, 3),
    Sketcher.Constraint("Horizontal", 12, 3, 14, 3),
    Sketcher.Constraint("Horizontal", 13, 3, 15, 3),
    Sketcher.Constraint("Vertical", 0, 3, 1, 3),
    Sketcher.Constraint("Vertical", 2, 3, 3, 3),
    Sketcher.Constraint("Vertical", 4, 3, 5, 3),
    Sketcher.Constraint("Vertical", 6, 3, 7, 3),
    Sketcher.Constraint("Vertical", 8, 3, 9, 3),
    Sketcher.Constraint("Vertical", 10, 3, 11, 3),
    Sketcher.Constraint("Vertical", 14, 3, 15, 3),
    Sketcher.Constraint("Diameter", 0, Q("0.16 in")),
    Sketcher.Constraint("Diameter", 4, Q("0.17 in")),
    Sketcher.Constraint("Diameter", 8, Q("0.11 in")),
    Sketcher.Constraint("DistanceX", 4, 3, 3, 3, Q("5 in")),
    Sketcher.Constraint("DistanceY", 5, 3, 9, 3, Q("7 in")),
    Sketcher.Constraint("DistanceX", 13, 3, 6, 3, Q("5 in")),
    Sketcher.Constraint("DistanceY", 4, 3, 0, 3, Q("0.4 in")),
    Sketcher.Constraint("DistanceX", 6, 3, 3, 3, Q("2.4 in")),
    Sketcher.Constraint("DistanceY", 0, 3, 1, 3, Q("1.14 in")),
    Sketcher.Constraint("DistanceX", 1, 3, 2, 3, Q("1.08 in")),
    Sketcher.Constraint("DistanceY", 4, 3, 5, 3, Q("0.95 in")),
    Sketcher.Constraint("DistanceX", 5, 3, 8, 3, Q("0.71 in")),
    Sketcher.Constraint("DistanceY", 5, 3, 8, 3, Q("5.82 in")),
    Sketcher.Constraint("DistanceX", 9, 3, 10, 3, Q("1.18 in")),
    Sketcher.Constraint("DistanceY", 4, 3, 12, 3, Q("0.34 in")),
    Sketcher.Constraint("Diameter", 12, 3.099994),
    Sketcher.Constraint("DistanceY", -1, 1, 13, 3, 59.7696),
    Sketcher.Constraint("DistanceX", 12, 3, 4, 3, 61.002901),
    Sketcher.Constraint("DistanceX", 14, 3, 4, 3, 37.002898),
    Sketcher.Constraint("DistanceX", -1, 1, 0, 3, 157.18195),
    Sketcher.Constraint("DistanceY", -1, 1, 0, 3, 30.89364),
])
pocket5 = body.newObject("PartDesign::Pocket", "Pocket004")
pocket5.Profile = sketch6
pocket5.Type = "ThroughAll"
pocket5.Reversed = True

doc.recompute()
